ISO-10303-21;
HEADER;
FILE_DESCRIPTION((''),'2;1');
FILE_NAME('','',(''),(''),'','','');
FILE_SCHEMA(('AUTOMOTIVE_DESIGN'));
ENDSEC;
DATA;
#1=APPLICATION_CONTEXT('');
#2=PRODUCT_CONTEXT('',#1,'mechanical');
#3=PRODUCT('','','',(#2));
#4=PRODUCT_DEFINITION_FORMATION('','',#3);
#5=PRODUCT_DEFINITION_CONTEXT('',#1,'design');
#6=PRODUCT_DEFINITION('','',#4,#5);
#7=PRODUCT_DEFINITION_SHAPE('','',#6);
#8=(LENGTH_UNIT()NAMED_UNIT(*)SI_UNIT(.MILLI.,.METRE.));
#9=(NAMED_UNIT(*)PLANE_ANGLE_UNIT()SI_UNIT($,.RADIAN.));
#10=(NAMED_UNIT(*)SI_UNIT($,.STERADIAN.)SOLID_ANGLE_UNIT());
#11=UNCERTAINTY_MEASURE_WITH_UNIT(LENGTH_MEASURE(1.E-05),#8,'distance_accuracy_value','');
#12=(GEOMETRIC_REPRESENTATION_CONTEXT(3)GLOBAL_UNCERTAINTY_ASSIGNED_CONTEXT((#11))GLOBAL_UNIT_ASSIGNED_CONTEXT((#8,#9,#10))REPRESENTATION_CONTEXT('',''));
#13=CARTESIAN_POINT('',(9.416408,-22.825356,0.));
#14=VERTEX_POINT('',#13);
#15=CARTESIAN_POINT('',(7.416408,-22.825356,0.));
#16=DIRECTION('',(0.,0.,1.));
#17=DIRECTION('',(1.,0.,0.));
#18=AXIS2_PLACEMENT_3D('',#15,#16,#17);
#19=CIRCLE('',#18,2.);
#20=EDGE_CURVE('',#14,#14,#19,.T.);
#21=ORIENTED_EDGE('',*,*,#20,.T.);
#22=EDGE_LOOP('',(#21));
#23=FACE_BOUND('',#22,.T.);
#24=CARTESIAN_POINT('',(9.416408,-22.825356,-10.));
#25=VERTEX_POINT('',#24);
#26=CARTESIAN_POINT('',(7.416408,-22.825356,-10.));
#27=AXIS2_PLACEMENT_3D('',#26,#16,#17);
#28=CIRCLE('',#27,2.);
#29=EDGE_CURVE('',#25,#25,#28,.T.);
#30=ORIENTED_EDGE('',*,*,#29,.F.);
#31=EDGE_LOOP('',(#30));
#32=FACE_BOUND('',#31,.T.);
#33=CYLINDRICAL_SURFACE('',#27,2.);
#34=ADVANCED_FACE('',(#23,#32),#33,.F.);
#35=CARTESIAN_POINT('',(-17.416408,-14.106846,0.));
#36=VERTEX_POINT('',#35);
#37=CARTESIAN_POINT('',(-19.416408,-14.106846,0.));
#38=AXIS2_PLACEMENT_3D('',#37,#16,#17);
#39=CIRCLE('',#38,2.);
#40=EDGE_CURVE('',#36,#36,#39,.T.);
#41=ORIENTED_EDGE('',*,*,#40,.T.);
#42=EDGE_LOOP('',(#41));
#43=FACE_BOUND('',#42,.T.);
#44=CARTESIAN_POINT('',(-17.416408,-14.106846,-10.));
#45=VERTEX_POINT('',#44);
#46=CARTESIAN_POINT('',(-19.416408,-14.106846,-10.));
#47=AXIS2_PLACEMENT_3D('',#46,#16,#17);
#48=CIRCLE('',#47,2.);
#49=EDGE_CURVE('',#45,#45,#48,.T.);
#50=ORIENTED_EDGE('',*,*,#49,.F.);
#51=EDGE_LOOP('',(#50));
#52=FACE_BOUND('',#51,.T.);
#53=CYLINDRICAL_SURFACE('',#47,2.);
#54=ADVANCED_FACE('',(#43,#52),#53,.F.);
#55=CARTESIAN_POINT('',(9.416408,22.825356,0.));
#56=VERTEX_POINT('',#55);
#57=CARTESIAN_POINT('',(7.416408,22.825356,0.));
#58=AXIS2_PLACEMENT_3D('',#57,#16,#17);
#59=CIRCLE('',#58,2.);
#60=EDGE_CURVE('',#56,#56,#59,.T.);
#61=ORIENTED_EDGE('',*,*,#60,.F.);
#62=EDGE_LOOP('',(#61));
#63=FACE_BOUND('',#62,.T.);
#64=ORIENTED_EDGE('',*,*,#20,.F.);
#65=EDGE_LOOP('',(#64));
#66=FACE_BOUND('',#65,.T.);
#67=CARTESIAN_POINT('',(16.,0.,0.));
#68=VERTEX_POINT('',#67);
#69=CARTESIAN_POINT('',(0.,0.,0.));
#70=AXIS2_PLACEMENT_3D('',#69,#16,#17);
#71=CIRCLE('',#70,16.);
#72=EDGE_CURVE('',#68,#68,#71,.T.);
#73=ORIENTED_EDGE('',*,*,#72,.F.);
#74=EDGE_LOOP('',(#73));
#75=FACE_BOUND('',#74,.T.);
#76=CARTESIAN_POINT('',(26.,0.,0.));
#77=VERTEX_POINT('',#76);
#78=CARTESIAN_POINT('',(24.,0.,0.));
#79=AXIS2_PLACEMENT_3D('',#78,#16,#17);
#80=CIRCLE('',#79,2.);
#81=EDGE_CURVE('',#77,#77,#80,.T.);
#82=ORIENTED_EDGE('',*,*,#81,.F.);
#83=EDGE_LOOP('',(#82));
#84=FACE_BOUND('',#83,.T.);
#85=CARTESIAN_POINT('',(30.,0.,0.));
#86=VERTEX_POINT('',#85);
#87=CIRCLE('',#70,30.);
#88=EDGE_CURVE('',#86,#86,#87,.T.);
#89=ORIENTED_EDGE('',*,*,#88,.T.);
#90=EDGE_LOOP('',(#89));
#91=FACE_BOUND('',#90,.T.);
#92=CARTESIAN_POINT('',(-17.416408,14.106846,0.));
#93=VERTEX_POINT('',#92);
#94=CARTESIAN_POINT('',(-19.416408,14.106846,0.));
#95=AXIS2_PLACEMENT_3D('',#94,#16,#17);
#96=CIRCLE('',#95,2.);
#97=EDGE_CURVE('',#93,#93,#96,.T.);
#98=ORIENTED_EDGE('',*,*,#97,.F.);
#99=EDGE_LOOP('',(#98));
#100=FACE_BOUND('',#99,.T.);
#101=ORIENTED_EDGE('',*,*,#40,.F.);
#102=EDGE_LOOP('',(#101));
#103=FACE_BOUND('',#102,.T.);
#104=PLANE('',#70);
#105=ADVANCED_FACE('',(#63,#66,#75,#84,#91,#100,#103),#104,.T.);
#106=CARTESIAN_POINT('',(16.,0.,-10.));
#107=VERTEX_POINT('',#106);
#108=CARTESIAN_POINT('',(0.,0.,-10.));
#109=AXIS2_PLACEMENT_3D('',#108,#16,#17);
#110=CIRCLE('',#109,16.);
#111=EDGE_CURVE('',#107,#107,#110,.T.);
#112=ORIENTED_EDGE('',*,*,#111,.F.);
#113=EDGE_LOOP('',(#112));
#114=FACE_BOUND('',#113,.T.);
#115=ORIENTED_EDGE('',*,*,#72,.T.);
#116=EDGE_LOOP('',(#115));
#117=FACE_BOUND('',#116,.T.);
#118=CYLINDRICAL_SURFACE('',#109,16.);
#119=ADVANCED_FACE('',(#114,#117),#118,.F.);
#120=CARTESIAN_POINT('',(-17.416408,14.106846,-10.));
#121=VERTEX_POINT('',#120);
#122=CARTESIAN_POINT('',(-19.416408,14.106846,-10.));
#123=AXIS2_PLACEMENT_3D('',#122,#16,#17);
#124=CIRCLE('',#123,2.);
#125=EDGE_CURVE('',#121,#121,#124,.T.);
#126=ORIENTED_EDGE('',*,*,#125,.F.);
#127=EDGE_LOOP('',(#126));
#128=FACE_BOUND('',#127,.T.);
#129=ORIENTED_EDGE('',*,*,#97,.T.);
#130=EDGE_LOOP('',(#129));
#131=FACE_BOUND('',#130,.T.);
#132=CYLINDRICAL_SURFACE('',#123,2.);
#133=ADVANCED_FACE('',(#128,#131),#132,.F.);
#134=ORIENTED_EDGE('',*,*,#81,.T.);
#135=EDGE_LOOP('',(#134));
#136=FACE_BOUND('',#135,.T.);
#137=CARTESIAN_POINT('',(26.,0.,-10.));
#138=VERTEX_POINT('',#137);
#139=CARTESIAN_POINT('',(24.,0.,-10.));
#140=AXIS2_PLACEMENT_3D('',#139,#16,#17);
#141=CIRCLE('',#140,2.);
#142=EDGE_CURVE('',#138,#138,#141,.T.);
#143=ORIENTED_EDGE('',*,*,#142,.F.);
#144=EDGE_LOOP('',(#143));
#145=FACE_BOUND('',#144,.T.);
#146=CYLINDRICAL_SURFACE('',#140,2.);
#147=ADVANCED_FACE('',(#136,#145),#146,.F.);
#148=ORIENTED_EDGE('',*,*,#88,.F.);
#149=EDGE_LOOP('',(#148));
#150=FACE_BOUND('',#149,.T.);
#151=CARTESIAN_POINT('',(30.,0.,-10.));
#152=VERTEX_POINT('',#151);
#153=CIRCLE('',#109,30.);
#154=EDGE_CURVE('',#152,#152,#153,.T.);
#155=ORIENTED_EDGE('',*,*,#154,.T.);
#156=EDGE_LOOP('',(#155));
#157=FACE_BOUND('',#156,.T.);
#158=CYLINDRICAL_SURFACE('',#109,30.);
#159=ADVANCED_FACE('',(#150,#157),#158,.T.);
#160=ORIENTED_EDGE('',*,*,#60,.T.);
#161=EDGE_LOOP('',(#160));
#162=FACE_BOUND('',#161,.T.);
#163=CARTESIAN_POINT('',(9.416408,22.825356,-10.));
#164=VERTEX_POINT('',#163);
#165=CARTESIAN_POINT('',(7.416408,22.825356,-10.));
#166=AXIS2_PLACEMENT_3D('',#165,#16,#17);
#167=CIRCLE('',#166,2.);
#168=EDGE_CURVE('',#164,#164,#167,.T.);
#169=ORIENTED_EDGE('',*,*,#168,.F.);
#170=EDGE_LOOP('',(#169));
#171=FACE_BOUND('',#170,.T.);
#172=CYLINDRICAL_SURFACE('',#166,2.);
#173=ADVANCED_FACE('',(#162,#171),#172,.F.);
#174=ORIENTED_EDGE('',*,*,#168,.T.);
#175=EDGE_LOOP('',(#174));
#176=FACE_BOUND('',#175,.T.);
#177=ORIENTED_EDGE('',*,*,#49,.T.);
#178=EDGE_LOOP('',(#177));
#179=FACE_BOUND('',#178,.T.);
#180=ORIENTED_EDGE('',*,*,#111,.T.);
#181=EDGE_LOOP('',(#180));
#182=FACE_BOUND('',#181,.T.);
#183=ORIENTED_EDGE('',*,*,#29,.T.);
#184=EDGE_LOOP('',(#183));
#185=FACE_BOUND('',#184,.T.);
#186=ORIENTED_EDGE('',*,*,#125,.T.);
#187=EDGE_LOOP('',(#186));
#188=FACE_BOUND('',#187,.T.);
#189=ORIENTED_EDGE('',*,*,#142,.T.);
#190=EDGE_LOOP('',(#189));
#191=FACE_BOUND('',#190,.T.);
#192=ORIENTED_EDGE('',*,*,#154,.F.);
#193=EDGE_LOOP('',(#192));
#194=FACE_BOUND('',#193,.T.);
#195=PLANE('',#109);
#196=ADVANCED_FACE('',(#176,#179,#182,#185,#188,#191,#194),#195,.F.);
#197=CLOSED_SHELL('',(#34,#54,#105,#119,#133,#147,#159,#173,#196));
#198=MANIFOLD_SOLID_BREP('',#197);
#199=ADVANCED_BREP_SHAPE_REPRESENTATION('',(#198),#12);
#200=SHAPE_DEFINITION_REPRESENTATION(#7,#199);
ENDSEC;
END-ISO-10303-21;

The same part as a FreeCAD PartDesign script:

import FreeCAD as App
import Part
import Sketcher
from FreeCAD import Vector
Q = App.Units.Quantity

doc = App.newDocument("Part")
body = doc.addObject("PartDesign::Body", "Body")

# Sketch on XY plane
sketch1 = body.newObject("Sketcher::SketchObject", "Sketch")
sketch1.AttachmentSupport = (doc.getObject("XY_Plane"), [""])
sketch1.MapMode = "FlatFace"
sketch1.addGeometry(Part.Circle(Vector(0, 0, 0), Vector(0, 0, 1), 30), False)
sketch1.addGeometry(Part.Circle(Vector(-19.4, -14.1, 0), Vector(0, 0, 1), 2), False)
sketch1.addGeometry(Part.Circle(Vector(7.4, -22.8, 0), Vector(0, 0, 1), 2), False)
sketch1.addGeometry(Part.Circle(Vector(0, 0, 0), Vector(0, 0, 1), 16), False)
sketch1.addGeometry(Part.Circle(Vector(-19.4, 14.1, 0), Vector(0, 0, 1), 2), False)
sketch1.addGeometry(Part.Circle(Vector(24, 0, 0), Vector(0, 0, 1), 2), False)
sketch1.addGeometry(Part.Circle(Vector(7.4, 22.8, 0), Vector(0, 0, 1), 2), False)
sketch1.addConstraint(Sketcher.Constraint("Coincident", 0, 3, -1, 1))
sketch1.addConstraint(Sketcher.Constraint("Coincident", 3, 3, -1, 1))
sketch1.addConstraint(Sketcher.Constraint("Equal", 1, 2))
sketch1.addConstraint(Sketcher.Constraint("Equal", 2, 4))
sketch1.addConstraint(Sketcher.Constraint("Equal", 4, 5))
sketch1.addConstraint(Sketcher.Constraint("Equal", 5, 6))
sketch1.addConstraint(Sketcher.Constraint("Symmetric", 1, 3, 4, 3, -1))
sketch1.addConstraint(Sketcher.Constraint("Symmetric", 2, 3, 6, 3, -1))
sketch1.addConstraint(Sketcher.Constraint("PointOnObject", 5, 3, -1))
sketch1.addConstraint(Sketcher.Constraint("Diameter", 0, Q("60 mm")))
sketch1.addConstraint(Sketcher.Constraint("Diameter", 1, Q("4 mm")))
sketch1.addConstraint(Sketcher.Constraint("Diameter", 3, Q("32 mm")))
sketch1.addConstraint(Sketcher.Constraint("DistanceX", -1, 1, 5, 3, Q("24 mm")))
sketch1.addConstraint(Sketcher.Constraint("DistanceY", 2, 3, 1, 3, Q("8.71851 mm")))
sketch1.addConstraint(Sketcher.Constraint("DistanceX", 1, 3, -1, 1, Q("19.416408 mm")))
sketch1.addConstraint(Sketcher.Constraint("DistanceY", 1, 3, -1, 1, Q("14.106846 mm")))
sketch1.addConstraint(Sketcher.Constraint("DistanceX", -1, 1, 2, 3, Q("7.416408 mm")))
pad1 = body.newObject("PartDesign::Pad", "Pad")
pad1.Profile = sketch1
pad1.Length = 10
pad1.Reversed = True

doc.recompute()
